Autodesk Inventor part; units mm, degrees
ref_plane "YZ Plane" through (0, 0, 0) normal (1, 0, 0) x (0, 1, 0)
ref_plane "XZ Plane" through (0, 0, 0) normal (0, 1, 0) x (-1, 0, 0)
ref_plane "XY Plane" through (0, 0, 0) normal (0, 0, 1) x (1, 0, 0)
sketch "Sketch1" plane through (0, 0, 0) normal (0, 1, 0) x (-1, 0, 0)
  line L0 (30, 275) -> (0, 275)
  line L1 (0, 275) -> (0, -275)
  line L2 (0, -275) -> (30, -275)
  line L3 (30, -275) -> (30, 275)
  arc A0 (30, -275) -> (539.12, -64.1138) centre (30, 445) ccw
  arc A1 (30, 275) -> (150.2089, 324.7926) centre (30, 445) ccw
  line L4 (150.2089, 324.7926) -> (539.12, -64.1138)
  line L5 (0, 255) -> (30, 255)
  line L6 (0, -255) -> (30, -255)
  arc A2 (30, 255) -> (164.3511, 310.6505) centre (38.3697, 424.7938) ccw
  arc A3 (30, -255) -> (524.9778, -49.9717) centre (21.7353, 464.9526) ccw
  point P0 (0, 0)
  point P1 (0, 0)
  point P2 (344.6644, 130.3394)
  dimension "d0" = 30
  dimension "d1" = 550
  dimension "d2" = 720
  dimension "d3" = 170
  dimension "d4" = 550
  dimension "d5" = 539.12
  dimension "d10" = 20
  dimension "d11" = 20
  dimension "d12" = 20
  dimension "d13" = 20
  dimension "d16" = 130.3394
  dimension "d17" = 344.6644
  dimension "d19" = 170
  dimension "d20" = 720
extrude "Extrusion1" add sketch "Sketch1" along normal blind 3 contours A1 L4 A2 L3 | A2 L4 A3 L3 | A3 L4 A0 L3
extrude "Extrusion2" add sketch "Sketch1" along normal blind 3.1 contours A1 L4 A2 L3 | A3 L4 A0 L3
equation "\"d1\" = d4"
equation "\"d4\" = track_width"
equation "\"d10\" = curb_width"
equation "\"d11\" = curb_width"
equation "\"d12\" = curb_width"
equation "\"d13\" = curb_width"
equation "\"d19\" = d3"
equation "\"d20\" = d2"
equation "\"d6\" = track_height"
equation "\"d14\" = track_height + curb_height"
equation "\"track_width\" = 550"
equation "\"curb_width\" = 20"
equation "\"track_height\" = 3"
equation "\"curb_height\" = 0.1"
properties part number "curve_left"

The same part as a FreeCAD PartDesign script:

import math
import FreeCAD as App
import Part
import Sketcher
from FreeCAD import Vector
Q = App.Units.Quantity

doc = App.newDocument("Part")
body = doc.addObject("PartDesign::Body", "Body")

sketch1 = doc.addObject("Sketcher::SketchObject", "Sketch")
body.addObject(sketch1)
sketch1.AttachmentSupport = (doc.XZ_Plane, [""])
sketch1.MapMode = "FlatFace"
sketch1.addGeometry([
    Part.ArcOfCircle(Part.Circle(Vector(-30, 445, 0), Vector(0, 0, 1), 170), math.radians(-135), math.radians(-90)),
    Part.LineSegment(Vector(-30, 275, 0), Vector(-30, -275, 0)),
    Part.ArcOfCircle(Part.Circle(Vector(-30, 445, 0), Vector(0, 0, 1), 720), math.radians(-135), math.radians(-90)),
    Part.LineSegment(Vector(-539, -64, 0), Vector(-150, 325, 0)),
], False)
sketch1.addConstraint([
    Sketcher.Constraint("Coincident", 0, 2, 1, 1),
    Sketcher.Constraint("Coincident", 1, 2, 2, 2),
    Sketcher.Constraint("Coincident", 2, 1, 3, 1),
    Sketcher.Constraint("Coincident", 3, 2, 0, 1),
    Sketcher.Constraint("Vertical", 1),
    Sketcher.Constraint("Coincident", 2, 3, 0, 3),
    Sketcher.Constraint("Vertical", 2, 3, 0, 2),
    Sketcher.Constraint("Radius", 0, 170.0),
    Sketcher.Constraint("Radius", 2, 720.0),
    Sketcher.Constraint("DistanceX", 0, 3, -1, 1, 30.0),
    Sketcher.Constraint("Angle", 3, Q("44.9997 deg")),
    Sketcher.Constraint("DistanceY", -1, 1, 0, 3, 445.0),
    Sketcher.Constraint("DistanceX", 3, 2, -1, 1, 150.209),
])
pad1 = doc.addObject("PartDesign::Pad", "Pad")
body.addObject(pad1)
pad1.Profile = sketch1
pad1.Length = 3
pad1.Reversed = True

sketch2 = doc.addObject("Sketcher::SketchObject", "Sketch001")
body.addObject(sketch2)
sketch2.AttachmentSupport = (doc.XZ_Plane, [""])
sketch2.MapMode = "FlatFace"
sketch2.addGeometry([
    Part.ArcOfCircle(Part.Circle(Vector(-30, 445, 0), Vector(0, 0, 1), 170), math.radians(-135), math.radians(-90)),
    Part.LineSegment(Vector(-30, 275, 0), Vector(-30, 255, 0)),
    Part.ArcOfCircle(Part.Circle(Vector(-38, 425, 0), Vector(0, 0, 1), 170), math.radians(-138), math.radians(-87)),
    Part.LineSegment(Vector(-164, 311, 0), Vector(-150, 325, 0)),
    Part.ArcOfCircle(Part.Circle(Vector(-22, 465, 0), Vector(0, 0, 1), 720), math.radians(-134), math.radians(-91)),
    Part.LineSegment(Vector(-30, -255, 0), Vector(-30, -275, 0)),
    Part.ArcOfCircle(Part.Circle(Vector(-30, 445, 0), Vector(0, 0, 1), 720), math.radians(-135), math.radians(-90)),
    Part.LineSegment(Vector(-539, -64, 0), Vector(-525, -50, 0)),
], False)
sketch2.addConstraint([
    Sketcher.Constraint("Coincident", 0, 2, 1, 1),
    Sketcher.Constraint("Coincident", 1, 2, 2, 2),
    Sketcher.Constraint("Coincident", 2, 1, 3, 1),
    Sketcher.Constraint("Coincident", 3, 2, 0, 1),
    Sketcher.Constraint("Coincident", 4, 2, 5, 1),
    Sketcher.Constraint("Coincident", 5, 2, 6, 2),
    Sketcher.Constraint("Coincident", 6, 1, 7, 1),
    Sketcher.Constraint("Coincident", 7, 2, 4, 1),
    Sketcher.Constraint("Vertical", 1),
    Sketcher.Constraint("Vertical", 5),
    Sketcher.Constraint("Coincident", 6, 3, 0, 3),
    Sketcher.Constraint("Equal", 0, 2),
    Sketcher.Constraint("Equal", 4, 6),
    Sketcher.Constraint("Symmetric", 0, 2, 5, 2, -1),
    Sketcher.Constraint("Parallel", 3, 7),
    Sketcher.Constraint("Vertical", 6, 3, 0, 2),
    Sketcher.Constraint("Equal", 1, 5),
    Sketcher.Constraint("Equal", 3, 7),
    Sketcher.Constraint("Radius", 0, 170.0),
    Sketcher.Constraint("Radius", 4, 720.0),
    Sketcher.Constraint("DistanceY", 1, 2, 1, 1, 20.0),
    Sketcher.Constraint("Distance", 3, 20.0),
    Sketcher.Constraint("DistanceX", 0, 3, -1, 1, 30.0),
    Sketcher.Constraint("Angle", 3, Q("44.9997 deg")),
    Sketcher.Constraint("DistanceX", 2, 1, -1, 1, 164.351),
    Sketcher.Constraint("DistanceX", 4, 3, -1, 1, 21.7353),
])
pad2 = doc.addObject("PartDesign::Pad", "Pad001")
body.addObject(pad2)
pad2.Profile = sketch2
pad2.Length = 3.1
pad2.Reversed = True

doc.recompute()
